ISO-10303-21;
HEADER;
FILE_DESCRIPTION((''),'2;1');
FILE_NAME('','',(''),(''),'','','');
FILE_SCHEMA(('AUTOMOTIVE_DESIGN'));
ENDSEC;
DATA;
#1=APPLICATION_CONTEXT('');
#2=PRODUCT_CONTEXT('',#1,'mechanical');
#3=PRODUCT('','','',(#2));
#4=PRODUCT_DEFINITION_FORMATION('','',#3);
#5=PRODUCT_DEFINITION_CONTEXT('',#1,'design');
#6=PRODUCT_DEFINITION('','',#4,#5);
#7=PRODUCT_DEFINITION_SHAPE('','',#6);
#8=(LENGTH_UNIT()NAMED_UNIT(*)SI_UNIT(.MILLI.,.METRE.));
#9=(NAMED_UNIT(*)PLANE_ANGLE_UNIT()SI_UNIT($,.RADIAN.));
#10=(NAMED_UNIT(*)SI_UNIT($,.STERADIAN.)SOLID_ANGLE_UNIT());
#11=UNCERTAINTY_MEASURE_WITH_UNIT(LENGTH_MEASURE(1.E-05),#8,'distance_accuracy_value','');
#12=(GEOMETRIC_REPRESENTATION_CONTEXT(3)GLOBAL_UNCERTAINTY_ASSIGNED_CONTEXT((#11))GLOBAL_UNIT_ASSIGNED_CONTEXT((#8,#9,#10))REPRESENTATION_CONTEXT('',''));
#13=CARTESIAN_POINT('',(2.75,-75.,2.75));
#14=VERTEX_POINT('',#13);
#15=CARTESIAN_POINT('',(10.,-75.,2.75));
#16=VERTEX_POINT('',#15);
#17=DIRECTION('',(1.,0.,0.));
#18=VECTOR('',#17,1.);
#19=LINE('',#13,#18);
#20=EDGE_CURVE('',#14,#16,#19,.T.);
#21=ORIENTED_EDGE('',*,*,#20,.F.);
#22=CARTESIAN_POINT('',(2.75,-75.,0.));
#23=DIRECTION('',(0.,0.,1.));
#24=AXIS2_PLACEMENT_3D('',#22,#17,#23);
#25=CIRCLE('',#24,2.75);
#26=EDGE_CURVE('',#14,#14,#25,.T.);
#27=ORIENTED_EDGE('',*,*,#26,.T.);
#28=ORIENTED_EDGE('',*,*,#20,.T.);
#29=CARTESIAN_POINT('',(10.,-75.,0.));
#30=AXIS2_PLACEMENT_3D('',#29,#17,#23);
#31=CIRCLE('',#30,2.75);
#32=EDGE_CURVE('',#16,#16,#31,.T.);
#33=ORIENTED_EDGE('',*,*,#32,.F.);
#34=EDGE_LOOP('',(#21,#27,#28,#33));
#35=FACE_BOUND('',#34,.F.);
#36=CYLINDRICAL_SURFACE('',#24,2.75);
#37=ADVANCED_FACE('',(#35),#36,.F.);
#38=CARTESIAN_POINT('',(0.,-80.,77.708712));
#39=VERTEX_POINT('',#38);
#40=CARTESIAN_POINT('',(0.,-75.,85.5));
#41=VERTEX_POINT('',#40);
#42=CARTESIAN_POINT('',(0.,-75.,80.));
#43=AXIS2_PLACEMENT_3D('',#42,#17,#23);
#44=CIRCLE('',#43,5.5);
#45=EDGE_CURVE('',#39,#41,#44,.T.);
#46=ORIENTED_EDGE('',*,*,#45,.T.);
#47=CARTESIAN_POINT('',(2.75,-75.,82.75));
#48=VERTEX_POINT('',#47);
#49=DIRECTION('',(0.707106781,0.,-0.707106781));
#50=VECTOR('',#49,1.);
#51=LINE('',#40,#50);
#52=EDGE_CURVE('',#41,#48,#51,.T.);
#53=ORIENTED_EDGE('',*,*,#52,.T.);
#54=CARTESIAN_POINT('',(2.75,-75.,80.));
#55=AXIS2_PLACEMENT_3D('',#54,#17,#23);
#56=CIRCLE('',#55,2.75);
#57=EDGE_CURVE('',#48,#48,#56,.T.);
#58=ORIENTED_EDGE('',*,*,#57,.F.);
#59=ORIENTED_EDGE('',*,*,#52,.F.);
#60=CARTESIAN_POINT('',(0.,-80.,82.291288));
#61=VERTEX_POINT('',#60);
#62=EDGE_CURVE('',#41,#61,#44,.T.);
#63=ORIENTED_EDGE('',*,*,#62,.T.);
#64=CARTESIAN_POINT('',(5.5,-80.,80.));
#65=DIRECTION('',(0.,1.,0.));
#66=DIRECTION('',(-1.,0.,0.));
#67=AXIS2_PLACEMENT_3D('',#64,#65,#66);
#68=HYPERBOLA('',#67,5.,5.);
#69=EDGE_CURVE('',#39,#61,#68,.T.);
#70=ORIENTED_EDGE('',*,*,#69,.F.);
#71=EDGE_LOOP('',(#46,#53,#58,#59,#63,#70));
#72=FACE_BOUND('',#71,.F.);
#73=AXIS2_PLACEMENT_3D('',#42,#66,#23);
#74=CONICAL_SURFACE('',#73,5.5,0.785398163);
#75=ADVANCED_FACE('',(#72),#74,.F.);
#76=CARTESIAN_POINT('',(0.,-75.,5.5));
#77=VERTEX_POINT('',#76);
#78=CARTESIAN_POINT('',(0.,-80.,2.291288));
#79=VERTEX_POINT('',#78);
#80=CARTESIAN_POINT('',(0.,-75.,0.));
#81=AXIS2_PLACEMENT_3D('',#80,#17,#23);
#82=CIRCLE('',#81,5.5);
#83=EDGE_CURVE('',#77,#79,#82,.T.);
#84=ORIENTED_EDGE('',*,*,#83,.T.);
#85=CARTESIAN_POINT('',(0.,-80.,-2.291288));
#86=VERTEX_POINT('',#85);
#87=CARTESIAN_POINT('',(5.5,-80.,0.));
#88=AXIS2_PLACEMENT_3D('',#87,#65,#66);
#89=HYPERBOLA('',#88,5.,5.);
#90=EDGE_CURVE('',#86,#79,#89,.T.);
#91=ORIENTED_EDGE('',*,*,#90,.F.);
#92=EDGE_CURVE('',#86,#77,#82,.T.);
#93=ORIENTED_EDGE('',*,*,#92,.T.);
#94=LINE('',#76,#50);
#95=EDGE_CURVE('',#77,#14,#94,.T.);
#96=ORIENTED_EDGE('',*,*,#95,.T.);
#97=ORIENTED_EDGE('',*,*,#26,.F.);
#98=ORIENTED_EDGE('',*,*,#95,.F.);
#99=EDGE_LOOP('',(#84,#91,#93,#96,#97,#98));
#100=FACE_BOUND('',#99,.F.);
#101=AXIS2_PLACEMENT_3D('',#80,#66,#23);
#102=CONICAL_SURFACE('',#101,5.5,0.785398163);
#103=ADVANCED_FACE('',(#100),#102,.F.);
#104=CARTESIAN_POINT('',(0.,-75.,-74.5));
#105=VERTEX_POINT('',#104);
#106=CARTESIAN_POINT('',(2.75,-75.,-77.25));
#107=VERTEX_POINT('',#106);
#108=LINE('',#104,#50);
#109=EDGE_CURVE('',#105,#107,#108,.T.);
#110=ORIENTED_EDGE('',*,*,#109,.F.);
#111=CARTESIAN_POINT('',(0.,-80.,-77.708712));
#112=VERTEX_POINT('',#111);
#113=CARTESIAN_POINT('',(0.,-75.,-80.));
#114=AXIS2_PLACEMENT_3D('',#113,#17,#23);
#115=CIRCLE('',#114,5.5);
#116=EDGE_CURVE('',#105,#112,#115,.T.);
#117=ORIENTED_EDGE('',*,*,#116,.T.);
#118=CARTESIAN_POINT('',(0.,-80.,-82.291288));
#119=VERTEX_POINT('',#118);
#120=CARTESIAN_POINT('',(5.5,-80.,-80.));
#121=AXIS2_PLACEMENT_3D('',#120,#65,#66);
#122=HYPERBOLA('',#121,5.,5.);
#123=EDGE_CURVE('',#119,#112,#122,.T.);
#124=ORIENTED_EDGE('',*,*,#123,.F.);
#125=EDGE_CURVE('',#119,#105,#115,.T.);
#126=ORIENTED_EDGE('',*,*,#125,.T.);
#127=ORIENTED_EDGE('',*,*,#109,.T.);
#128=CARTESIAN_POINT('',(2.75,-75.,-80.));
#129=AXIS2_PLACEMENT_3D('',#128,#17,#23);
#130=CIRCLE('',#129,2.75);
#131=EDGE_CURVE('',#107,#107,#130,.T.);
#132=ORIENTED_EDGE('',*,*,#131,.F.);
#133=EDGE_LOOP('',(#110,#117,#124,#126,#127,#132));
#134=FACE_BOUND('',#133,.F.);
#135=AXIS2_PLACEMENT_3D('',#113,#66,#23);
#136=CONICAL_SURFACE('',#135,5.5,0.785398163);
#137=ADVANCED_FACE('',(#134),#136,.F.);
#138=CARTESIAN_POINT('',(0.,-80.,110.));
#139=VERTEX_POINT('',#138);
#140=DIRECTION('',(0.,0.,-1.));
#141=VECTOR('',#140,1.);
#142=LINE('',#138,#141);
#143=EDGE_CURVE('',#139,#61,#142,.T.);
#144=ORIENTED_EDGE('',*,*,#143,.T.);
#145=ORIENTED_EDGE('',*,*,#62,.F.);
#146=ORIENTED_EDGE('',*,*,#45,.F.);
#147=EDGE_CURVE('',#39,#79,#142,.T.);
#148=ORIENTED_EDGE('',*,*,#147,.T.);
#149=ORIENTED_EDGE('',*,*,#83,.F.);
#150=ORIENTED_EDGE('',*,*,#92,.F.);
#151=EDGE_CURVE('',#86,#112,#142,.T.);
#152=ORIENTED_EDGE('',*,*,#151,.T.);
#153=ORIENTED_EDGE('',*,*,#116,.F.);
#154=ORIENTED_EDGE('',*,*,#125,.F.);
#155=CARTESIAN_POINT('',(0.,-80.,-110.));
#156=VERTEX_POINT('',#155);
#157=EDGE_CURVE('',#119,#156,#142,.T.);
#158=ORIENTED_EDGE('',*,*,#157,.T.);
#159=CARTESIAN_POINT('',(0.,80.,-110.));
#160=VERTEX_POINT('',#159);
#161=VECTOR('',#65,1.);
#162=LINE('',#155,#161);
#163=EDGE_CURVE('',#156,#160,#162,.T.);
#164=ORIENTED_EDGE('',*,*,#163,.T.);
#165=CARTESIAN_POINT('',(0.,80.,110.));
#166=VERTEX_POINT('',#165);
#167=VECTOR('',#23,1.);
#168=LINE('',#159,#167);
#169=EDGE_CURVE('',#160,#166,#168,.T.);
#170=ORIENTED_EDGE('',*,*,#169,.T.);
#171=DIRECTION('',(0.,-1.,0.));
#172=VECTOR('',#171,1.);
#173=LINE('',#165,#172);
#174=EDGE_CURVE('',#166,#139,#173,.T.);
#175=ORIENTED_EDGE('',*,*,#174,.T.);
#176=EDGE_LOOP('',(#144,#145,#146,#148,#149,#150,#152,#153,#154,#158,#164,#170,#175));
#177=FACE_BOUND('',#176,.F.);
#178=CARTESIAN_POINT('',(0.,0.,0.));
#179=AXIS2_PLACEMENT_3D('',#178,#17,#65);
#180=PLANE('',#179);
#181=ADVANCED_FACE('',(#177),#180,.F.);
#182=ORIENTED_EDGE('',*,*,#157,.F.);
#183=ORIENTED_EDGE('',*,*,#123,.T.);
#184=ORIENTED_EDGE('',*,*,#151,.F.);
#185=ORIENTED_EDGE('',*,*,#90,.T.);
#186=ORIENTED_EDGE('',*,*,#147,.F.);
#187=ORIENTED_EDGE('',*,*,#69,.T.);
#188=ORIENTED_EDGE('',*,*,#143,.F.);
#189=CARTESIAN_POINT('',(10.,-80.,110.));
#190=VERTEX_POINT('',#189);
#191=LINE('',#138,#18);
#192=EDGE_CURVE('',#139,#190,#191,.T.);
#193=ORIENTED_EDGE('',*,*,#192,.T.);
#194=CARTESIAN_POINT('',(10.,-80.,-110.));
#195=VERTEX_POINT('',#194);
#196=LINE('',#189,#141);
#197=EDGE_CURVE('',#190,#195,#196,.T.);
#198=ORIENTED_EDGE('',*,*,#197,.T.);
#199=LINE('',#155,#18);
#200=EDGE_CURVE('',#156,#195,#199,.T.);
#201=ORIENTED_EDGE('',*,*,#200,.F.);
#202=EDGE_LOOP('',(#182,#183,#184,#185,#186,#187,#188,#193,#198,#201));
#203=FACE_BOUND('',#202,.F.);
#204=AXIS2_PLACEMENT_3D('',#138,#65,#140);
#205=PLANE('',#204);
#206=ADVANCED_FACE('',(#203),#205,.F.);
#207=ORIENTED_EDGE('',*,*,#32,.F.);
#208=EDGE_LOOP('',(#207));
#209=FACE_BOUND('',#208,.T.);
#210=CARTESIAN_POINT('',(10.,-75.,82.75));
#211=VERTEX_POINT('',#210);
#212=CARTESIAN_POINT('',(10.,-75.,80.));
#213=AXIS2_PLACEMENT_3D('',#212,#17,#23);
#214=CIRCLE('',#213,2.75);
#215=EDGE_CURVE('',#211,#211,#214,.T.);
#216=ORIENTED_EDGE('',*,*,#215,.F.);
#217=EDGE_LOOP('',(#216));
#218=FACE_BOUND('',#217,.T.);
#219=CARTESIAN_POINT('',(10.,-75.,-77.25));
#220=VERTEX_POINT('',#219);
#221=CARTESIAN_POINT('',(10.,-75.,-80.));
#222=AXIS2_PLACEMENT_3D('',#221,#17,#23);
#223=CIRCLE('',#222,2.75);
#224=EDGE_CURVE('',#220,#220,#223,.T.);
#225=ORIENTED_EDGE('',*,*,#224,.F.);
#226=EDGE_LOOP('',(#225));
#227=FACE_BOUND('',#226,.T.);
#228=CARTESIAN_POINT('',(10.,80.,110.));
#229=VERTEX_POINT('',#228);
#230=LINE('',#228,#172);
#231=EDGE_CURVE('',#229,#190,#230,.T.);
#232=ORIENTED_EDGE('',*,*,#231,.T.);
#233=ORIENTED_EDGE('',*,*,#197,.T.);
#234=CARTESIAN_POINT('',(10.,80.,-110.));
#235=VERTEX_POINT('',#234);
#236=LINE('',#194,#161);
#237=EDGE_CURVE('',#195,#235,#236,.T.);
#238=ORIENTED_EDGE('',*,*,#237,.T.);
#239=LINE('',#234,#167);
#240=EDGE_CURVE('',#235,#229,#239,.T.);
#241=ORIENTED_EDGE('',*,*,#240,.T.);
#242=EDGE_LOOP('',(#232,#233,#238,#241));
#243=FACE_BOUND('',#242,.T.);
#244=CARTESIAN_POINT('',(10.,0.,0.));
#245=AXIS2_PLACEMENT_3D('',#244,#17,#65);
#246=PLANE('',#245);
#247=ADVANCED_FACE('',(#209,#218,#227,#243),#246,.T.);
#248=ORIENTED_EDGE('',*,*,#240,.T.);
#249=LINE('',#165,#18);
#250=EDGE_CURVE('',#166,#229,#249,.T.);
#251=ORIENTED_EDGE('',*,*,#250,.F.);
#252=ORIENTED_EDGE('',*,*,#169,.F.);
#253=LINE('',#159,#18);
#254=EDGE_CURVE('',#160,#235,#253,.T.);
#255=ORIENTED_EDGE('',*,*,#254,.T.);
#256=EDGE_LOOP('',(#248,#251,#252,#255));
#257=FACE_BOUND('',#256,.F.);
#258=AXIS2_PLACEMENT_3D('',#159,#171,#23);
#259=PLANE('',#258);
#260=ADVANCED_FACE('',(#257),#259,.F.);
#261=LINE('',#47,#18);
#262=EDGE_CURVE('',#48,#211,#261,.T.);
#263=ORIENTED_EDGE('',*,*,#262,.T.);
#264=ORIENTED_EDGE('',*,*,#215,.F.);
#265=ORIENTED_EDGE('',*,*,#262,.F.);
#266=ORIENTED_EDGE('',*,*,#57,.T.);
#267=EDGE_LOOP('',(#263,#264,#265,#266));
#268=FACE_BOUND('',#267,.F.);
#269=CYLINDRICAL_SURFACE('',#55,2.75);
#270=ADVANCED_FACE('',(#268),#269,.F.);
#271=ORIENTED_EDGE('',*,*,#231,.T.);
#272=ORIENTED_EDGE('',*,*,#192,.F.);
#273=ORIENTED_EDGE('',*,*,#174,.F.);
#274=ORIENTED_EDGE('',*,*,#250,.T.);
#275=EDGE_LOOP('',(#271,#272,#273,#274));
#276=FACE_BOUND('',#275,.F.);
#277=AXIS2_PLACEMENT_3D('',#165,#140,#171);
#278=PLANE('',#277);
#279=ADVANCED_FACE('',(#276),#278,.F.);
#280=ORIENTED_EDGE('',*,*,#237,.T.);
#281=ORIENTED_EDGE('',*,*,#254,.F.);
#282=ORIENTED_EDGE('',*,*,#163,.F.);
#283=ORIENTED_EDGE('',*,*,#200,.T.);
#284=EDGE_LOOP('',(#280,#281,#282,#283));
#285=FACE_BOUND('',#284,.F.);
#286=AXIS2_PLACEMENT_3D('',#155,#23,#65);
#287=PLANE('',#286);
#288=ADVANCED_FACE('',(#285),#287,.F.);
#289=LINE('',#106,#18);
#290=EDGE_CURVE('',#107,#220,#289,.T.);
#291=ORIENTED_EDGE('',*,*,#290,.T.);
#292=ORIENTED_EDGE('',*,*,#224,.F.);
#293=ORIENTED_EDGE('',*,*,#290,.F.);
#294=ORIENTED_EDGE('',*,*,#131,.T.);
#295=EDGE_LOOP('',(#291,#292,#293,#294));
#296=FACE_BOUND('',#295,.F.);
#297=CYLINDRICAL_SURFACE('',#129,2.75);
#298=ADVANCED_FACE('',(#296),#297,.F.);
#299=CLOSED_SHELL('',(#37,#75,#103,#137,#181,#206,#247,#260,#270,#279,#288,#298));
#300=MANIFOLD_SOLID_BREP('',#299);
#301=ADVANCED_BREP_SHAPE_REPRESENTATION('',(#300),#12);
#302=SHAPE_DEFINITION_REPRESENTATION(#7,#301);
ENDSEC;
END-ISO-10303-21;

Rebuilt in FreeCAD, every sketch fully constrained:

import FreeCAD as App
import Part
import Sketcher


def add_polygon(sketch, points):
    """Adds a closed chain of lines whose ends are joined by coincident constraints."""
    first, n = sketch.GeometryCount, len(points)
    for a, b in zip(points, points[1:] + points[:1]):
        sketch.addGeometry(Part.LineSegment(App.Vector(*a, 0), App.Vector(*b, 0)), False)
    for i in range(n):
        sketch.addConstraint(Sketcher.Constraint("Coincident", first + i, 2, first + (i + 1) % n, 1))

doc = App.newDocument("Part")
body = doc.addObject("PartDesign::Body", "Body")

# Sketch on YZ plane
sketch1 = doc.addObject("Sketcher::SketchObject", "Sketch")
body.addObject(sketch1)
sketch1.AttachmentSupport = (doc.YZ_Plane, [""])
sketch1.MapMode = "FlatFace"
add_polygon(sketch1, [(-80, 110), (-80, -110), (80, -110), (80, 110)])  # lines 0-3
sketch1.addConstraint(Sketcher.Constraint("Vertical", 0))
sketch1.addConstraint(Sketcher.Constraint("Horizontal", 1))
sketch1.addConstraint(Sketcher.Constraint("Vertical", 2))
sketch1.addConstraint(Sketcher.Constraint("Horizontal", 3))
sketch1.addConstraint(Sketcher.Constraint("Symmetric", 0, 2, 2, 2, -1, 1))
sketch1.addConstraint(Sketcher.Constraint("DistanceX", 1, 1, 1, 2, 160.0))
sketch1.addConstraint(Sketcher.Constraint("DistanceY", 0, 2, 0, 1, 220.0))
pad1 = doc.addObject("PartDesign::Pad", "Pad")
body.addObject(pad1)
pad1.Profile = sketch1
pad1.Length = 10

# Sketch on YZ plane
sketch2 = doc.addObject("Sketcher::SketchObject", "Sketch001")
body.addObject(sketch2)
sketch2.AttachmentSupport = (doc.YZ_Plane, [""])
sketch2.MapMode = "FlatFace"
sketch2.addGeometry(Part.Circle(App.Vector(-75, -80, 0), App.Vector(0, 0, 1), 2.75), False)
sketch2.addGeometry(Part.Circle(App.Vector(-75, 0, 0), App.Vector(0, 0, 1), 2.75), False)
sketch2.addGeometry(Part.Circle(App.Vector(-75, 80, 0), App.Vector(0, 0, 1), 2.75), False)
sketch2.addConstraint(Sketcher.Constraint("Equal", 0, 1))
sketch2.addConstraint(Sketcher.Constraint("Equal", 1, 2))
sketch2.addConstraint(Sketcher.Constraint("Symmetric", 0, 3, 2, 3, -1))
sketch2.addConstraint(Sketcher.Constraint("PointOnObject", 1, 3, -1))
sketch2.addConstraint(Sketcher.Constraint("Vertical", 0, 3, 1, 3))
sketch2.addConstraint(Sketcher.Constraint("Diameter", 0, 5.5))
sketch2.addConstraint(Sketcher.Constraint("DistanceX", 0, 3, -1, 1, 75.0))
sketch2.addConstraint(Sketcher.Constraint("DistanceY", 0, 3, -1, 1, 80.0))
doc.recompute()
hole = doc.addObject("PartDesign::Hole", "Hole")
body.addObject(hole)
hole.Profile = sketch2
hole.ThreadType = "None"
hole.Diameter = 5.5
hole.DepthType = "Dimension"
hole.Depth = 20
hole.DrillPoint = "Angled"
hole.DrillPointAngle = 118
hole.HoleCutType = "Countersink"
hole.HoleCutDiameter = 11
hole.HoleCutCountersinkAngle = 90
hole.Reversed = True

doc.recompute()
